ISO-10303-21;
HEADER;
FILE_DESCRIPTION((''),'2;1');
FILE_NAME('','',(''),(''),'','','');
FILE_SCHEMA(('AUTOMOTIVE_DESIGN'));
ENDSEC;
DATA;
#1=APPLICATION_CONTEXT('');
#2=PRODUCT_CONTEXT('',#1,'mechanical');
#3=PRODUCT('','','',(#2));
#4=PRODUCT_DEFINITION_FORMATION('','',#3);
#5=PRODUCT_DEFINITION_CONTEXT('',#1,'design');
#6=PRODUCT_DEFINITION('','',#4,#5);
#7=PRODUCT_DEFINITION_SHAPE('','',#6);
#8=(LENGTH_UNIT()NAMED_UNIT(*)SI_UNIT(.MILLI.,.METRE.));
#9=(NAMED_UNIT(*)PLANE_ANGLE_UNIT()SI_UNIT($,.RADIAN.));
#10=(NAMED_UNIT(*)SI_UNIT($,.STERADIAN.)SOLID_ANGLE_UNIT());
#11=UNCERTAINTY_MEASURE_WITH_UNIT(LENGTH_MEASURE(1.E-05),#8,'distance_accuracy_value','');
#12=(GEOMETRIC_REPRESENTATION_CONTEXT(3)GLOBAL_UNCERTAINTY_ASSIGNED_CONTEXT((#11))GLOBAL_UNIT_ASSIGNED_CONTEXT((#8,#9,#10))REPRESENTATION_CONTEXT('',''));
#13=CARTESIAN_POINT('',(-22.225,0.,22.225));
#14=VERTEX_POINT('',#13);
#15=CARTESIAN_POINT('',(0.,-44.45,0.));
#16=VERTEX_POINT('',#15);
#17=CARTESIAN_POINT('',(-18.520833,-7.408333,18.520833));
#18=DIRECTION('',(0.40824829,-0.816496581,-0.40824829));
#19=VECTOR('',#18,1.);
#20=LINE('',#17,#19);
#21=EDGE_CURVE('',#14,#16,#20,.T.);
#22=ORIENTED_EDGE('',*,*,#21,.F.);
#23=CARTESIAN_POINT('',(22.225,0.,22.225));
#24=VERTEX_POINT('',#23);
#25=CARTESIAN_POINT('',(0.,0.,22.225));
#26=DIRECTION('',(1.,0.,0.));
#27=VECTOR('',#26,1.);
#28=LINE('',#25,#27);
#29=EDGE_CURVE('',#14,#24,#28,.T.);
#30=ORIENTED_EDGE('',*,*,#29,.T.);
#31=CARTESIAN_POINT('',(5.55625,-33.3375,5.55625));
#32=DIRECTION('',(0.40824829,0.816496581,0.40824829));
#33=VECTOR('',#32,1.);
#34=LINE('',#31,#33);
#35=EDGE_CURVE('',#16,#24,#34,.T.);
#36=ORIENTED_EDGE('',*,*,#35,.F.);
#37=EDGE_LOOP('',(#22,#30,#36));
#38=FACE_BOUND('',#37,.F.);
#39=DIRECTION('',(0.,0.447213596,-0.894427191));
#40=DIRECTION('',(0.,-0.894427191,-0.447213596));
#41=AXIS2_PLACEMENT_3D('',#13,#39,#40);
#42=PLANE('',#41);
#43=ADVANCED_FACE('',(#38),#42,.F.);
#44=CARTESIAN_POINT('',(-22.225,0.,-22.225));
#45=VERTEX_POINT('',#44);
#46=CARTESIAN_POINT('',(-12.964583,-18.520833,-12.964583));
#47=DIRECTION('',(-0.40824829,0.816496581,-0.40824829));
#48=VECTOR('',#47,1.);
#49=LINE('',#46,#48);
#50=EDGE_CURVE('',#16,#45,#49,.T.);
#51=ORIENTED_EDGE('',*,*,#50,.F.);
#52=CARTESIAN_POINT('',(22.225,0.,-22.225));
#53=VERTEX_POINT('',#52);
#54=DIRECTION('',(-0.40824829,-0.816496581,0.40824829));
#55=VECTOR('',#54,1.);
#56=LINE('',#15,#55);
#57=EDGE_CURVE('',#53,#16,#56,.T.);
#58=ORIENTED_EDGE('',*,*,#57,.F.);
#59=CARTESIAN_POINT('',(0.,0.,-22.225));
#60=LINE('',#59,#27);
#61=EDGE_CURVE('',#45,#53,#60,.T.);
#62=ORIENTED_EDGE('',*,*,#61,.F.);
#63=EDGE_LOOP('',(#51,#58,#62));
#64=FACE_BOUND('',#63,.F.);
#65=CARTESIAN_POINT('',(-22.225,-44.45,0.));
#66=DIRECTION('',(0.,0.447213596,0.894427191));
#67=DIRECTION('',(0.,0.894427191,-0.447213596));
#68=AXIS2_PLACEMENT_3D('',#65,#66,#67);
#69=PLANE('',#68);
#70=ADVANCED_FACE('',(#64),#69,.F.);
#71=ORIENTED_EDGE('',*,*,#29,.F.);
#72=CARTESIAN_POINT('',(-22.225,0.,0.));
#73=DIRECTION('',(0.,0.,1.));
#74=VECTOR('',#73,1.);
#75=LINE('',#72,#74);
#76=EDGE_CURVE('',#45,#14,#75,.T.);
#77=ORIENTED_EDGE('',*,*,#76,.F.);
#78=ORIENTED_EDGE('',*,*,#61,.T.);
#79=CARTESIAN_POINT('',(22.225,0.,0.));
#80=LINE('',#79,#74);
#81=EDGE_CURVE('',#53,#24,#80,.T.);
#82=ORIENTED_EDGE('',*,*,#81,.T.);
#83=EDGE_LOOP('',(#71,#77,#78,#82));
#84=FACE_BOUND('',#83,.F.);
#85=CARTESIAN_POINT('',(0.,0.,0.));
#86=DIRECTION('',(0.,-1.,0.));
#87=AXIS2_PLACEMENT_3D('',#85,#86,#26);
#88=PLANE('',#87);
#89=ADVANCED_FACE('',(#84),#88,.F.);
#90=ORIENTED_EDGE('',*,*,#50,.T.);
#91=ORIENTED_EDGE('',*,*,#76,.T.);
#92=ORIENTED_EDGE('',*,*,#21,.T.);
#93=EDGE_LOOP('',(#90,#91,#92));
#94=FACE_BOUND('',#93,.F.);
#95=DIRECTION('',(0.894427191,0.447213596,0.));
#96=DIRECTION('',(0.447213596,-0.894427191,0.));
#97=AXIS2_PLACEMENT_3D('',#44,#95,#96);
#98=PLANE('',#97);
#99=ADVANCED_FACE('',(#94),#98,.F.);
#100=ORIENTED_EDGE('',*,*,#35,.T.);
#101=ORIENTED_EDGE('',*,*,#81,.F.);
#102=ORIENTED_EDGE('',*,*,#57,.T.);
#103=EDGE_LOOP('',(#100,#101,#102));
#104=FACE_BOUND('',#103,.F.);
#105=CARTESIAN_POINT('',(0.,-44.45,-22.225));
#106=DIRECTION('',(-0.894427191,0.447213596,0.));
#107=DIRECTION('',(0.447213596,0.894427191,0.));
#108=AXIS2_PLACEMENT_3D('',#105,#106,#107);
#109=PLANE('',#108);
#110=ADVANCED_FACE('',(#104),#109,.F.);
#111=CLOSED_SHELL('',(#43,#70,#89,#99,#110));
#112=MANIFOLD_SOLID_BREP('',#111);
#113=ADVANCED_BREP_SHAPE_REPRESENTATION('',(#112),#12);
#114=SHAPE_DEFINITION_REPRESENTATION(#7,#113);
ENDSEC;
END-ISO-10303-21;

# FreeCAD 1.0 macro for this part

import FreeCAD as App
import Part
import Sketcher
Q = App.Units.Quantity


def add_polygon(sketch, points):
    """Adds a closed chain of lines whose ends are joined by coincident constraints."""
    first, n = sketch.GeometryCount, len(points)
    for a, b in zip(points, points[1:] + points[:1]):
        sketch.addGeometry(Part.LineSegment(App.Vector(*a, 0), App.Vector(*b, 0)), False)
    for i in range(n):
        sketch.addConstraint(Sketcher.Constraint("Coincident", first + i, 2, first + (i + 1) % n, 1))

doc = App.newDocument("Part")
body = doc.addObject("PartDesign::Body", "Body")

sketch1 = body.newObject("Sketcher::SketchObject", "Sketch")
sketch1.AttachmentSupport = (doc.getObject("XZ_Plane"), [""])
sketch1.MapMode = "FlatFace"
add_polygon(sketch1, [(-22.225, 22.225), (-22.225, -22.225), (22.225, -22.225), (22.225, 22.225)])
sketch1.addConstraint(Sketcher.Constraint("Vertical", 0))
sketch1.addConstraint(Sketcher.Constraint("Horizontal", 1))
sketch1.addConstraint(Sketcher.Constraint("Vertical", 2))
sketch1.addConstraint(Sketcher.Constraint("Horizontal", 3))
sketch1.addConstraint(Sketcher.Constraint("Symmetric", 0, 2, 2, 2, -1, 1))
sketch1.addConstraint(Sketcher.Constraint("Equal", 3, 0))
sketch1.addConstraint(Sketcher.Constraint("DistanceX", 1, 1, 1, 2, Q("1.75 in")))
pad1 = body.newObject("PartDesign::Pad", "Pad")
pad1.Profile = sketch1
pad1.Length = Q("1.75 in")

sketch2 = body.newObject("Sketcher::SketchObject", "Sketch001")
sketch2.AttachmentSupport = (doc.getObject("YZ_Plane"), [""])
sketch2.MapMode = "FlatFace"
sketch2.AttachmentOffset = App.Placement(App.Vector(0, 0, -0.875 * 25.4), App.Rotation())
add_polygon(sketch2, [(-44.45, 22.225), (0, 22.225), (-44.45, 0)])
add_polygon(sketch2, [(-44.45, -22.225), (-44.45, 0), (0, -22.225)])
sketch2.addConstraint(Sketcher.Constraint("Horizontal", 0))
sketch2.addConstraint(Sketcher.Constraint("Vertical", 2))
sketch2.addConstraint(Sketcher.Constraint("Vertical", 3))
sketch2.addConstraint(Sketcher.Constraint("Horizontal", 5))
sketch2.addConstraint(Sketcher.Constraint("Coincident", 3, 2, 1, 2))
sketch2.addConstraint(Sketcher.Constraint("Symmetric", 0, 2, 4, 2, -1, 1))
sketch2.addConstraint(Sketcher.Constraint("PointOnObject", 0, 2, -2))
sketch2.addConstraint(Sketcher.Constraint("PointOnObject", 1, 2, -1))
sketch2.addConstraint(Sketcher.Constraint("DistanceX", 0, 1, 0, 2, Q("1.75 in")))
sketch2.addConstraint(Sketcher.Constraint("DistanceY", 2, 1, 2, 2, Q("0.875 in")))
pocket1 = body.newObject("PartDesign::Pocket", "Pocket")
pocket1.Profile = sketch2
pocket1.Type = "ThroughAll"
pocket1.Reversed = True

sketch3 = body.newObject("Sketcher::SketchObject", "Sketch002")
sketch3.AttachmentSupport = (doc.getObject("XY_Plane"), [""])
sketch3.MapMode = "FlatFace"
sketch3.AttachmentOffset = App.Placement(App.Vector(0, 0, -0.875 * 25.4), App.Rotation())
add_polygon(sketch3, [(22.225, -44.45), (0, -44.45), (22.225, 0)])
add_polygon(sketch3, [(-22.225, -44.45), (-22.225, 0), (0, -44.45)])
sketch3.addConstraint(Sketcher.Constraint("Horizontal", 0))
sketch3.addConstraint(Sketcher.Constraint("Vertical", 2))
sketch3.addConstraint(Sketcher.Constraint("Vertical", 3))
sketch3.addConstraint(Sketcher.Constraint("Horizontal", 5))
sketch3.addConstraint(Sketcher.Constraint("Coincident", 4, 2, 0, 2))
sketch3.addConstraint(Sketcher.Constraint("Symmetric", 1, 2, 3, 2, -1, 1))
sketch3.addConstraint(Sketcher.Constraint("PointOnObject", 0, 2, -2))
sketch3.addConstraint(Sketcher.Constraint("PointOnObject", 1, 2, -1))
sketch3.addConstraint(Sketcher.Constraint("DistanceY", 2, 2, 2, 1, Q("1.75 in")))
sketch3.addConstraint(Sketcher.Constraint("DistanceX", 0, 2, 0, 1, Q("0.875 in")))
pocket2 = body.newObject("PartDesign::Pocket", "Pocket001")
pocket2.Profile = sketch3
pocket2.Type = "ThroughAll"
pocket2.Reversed = True

doc.recompute()
